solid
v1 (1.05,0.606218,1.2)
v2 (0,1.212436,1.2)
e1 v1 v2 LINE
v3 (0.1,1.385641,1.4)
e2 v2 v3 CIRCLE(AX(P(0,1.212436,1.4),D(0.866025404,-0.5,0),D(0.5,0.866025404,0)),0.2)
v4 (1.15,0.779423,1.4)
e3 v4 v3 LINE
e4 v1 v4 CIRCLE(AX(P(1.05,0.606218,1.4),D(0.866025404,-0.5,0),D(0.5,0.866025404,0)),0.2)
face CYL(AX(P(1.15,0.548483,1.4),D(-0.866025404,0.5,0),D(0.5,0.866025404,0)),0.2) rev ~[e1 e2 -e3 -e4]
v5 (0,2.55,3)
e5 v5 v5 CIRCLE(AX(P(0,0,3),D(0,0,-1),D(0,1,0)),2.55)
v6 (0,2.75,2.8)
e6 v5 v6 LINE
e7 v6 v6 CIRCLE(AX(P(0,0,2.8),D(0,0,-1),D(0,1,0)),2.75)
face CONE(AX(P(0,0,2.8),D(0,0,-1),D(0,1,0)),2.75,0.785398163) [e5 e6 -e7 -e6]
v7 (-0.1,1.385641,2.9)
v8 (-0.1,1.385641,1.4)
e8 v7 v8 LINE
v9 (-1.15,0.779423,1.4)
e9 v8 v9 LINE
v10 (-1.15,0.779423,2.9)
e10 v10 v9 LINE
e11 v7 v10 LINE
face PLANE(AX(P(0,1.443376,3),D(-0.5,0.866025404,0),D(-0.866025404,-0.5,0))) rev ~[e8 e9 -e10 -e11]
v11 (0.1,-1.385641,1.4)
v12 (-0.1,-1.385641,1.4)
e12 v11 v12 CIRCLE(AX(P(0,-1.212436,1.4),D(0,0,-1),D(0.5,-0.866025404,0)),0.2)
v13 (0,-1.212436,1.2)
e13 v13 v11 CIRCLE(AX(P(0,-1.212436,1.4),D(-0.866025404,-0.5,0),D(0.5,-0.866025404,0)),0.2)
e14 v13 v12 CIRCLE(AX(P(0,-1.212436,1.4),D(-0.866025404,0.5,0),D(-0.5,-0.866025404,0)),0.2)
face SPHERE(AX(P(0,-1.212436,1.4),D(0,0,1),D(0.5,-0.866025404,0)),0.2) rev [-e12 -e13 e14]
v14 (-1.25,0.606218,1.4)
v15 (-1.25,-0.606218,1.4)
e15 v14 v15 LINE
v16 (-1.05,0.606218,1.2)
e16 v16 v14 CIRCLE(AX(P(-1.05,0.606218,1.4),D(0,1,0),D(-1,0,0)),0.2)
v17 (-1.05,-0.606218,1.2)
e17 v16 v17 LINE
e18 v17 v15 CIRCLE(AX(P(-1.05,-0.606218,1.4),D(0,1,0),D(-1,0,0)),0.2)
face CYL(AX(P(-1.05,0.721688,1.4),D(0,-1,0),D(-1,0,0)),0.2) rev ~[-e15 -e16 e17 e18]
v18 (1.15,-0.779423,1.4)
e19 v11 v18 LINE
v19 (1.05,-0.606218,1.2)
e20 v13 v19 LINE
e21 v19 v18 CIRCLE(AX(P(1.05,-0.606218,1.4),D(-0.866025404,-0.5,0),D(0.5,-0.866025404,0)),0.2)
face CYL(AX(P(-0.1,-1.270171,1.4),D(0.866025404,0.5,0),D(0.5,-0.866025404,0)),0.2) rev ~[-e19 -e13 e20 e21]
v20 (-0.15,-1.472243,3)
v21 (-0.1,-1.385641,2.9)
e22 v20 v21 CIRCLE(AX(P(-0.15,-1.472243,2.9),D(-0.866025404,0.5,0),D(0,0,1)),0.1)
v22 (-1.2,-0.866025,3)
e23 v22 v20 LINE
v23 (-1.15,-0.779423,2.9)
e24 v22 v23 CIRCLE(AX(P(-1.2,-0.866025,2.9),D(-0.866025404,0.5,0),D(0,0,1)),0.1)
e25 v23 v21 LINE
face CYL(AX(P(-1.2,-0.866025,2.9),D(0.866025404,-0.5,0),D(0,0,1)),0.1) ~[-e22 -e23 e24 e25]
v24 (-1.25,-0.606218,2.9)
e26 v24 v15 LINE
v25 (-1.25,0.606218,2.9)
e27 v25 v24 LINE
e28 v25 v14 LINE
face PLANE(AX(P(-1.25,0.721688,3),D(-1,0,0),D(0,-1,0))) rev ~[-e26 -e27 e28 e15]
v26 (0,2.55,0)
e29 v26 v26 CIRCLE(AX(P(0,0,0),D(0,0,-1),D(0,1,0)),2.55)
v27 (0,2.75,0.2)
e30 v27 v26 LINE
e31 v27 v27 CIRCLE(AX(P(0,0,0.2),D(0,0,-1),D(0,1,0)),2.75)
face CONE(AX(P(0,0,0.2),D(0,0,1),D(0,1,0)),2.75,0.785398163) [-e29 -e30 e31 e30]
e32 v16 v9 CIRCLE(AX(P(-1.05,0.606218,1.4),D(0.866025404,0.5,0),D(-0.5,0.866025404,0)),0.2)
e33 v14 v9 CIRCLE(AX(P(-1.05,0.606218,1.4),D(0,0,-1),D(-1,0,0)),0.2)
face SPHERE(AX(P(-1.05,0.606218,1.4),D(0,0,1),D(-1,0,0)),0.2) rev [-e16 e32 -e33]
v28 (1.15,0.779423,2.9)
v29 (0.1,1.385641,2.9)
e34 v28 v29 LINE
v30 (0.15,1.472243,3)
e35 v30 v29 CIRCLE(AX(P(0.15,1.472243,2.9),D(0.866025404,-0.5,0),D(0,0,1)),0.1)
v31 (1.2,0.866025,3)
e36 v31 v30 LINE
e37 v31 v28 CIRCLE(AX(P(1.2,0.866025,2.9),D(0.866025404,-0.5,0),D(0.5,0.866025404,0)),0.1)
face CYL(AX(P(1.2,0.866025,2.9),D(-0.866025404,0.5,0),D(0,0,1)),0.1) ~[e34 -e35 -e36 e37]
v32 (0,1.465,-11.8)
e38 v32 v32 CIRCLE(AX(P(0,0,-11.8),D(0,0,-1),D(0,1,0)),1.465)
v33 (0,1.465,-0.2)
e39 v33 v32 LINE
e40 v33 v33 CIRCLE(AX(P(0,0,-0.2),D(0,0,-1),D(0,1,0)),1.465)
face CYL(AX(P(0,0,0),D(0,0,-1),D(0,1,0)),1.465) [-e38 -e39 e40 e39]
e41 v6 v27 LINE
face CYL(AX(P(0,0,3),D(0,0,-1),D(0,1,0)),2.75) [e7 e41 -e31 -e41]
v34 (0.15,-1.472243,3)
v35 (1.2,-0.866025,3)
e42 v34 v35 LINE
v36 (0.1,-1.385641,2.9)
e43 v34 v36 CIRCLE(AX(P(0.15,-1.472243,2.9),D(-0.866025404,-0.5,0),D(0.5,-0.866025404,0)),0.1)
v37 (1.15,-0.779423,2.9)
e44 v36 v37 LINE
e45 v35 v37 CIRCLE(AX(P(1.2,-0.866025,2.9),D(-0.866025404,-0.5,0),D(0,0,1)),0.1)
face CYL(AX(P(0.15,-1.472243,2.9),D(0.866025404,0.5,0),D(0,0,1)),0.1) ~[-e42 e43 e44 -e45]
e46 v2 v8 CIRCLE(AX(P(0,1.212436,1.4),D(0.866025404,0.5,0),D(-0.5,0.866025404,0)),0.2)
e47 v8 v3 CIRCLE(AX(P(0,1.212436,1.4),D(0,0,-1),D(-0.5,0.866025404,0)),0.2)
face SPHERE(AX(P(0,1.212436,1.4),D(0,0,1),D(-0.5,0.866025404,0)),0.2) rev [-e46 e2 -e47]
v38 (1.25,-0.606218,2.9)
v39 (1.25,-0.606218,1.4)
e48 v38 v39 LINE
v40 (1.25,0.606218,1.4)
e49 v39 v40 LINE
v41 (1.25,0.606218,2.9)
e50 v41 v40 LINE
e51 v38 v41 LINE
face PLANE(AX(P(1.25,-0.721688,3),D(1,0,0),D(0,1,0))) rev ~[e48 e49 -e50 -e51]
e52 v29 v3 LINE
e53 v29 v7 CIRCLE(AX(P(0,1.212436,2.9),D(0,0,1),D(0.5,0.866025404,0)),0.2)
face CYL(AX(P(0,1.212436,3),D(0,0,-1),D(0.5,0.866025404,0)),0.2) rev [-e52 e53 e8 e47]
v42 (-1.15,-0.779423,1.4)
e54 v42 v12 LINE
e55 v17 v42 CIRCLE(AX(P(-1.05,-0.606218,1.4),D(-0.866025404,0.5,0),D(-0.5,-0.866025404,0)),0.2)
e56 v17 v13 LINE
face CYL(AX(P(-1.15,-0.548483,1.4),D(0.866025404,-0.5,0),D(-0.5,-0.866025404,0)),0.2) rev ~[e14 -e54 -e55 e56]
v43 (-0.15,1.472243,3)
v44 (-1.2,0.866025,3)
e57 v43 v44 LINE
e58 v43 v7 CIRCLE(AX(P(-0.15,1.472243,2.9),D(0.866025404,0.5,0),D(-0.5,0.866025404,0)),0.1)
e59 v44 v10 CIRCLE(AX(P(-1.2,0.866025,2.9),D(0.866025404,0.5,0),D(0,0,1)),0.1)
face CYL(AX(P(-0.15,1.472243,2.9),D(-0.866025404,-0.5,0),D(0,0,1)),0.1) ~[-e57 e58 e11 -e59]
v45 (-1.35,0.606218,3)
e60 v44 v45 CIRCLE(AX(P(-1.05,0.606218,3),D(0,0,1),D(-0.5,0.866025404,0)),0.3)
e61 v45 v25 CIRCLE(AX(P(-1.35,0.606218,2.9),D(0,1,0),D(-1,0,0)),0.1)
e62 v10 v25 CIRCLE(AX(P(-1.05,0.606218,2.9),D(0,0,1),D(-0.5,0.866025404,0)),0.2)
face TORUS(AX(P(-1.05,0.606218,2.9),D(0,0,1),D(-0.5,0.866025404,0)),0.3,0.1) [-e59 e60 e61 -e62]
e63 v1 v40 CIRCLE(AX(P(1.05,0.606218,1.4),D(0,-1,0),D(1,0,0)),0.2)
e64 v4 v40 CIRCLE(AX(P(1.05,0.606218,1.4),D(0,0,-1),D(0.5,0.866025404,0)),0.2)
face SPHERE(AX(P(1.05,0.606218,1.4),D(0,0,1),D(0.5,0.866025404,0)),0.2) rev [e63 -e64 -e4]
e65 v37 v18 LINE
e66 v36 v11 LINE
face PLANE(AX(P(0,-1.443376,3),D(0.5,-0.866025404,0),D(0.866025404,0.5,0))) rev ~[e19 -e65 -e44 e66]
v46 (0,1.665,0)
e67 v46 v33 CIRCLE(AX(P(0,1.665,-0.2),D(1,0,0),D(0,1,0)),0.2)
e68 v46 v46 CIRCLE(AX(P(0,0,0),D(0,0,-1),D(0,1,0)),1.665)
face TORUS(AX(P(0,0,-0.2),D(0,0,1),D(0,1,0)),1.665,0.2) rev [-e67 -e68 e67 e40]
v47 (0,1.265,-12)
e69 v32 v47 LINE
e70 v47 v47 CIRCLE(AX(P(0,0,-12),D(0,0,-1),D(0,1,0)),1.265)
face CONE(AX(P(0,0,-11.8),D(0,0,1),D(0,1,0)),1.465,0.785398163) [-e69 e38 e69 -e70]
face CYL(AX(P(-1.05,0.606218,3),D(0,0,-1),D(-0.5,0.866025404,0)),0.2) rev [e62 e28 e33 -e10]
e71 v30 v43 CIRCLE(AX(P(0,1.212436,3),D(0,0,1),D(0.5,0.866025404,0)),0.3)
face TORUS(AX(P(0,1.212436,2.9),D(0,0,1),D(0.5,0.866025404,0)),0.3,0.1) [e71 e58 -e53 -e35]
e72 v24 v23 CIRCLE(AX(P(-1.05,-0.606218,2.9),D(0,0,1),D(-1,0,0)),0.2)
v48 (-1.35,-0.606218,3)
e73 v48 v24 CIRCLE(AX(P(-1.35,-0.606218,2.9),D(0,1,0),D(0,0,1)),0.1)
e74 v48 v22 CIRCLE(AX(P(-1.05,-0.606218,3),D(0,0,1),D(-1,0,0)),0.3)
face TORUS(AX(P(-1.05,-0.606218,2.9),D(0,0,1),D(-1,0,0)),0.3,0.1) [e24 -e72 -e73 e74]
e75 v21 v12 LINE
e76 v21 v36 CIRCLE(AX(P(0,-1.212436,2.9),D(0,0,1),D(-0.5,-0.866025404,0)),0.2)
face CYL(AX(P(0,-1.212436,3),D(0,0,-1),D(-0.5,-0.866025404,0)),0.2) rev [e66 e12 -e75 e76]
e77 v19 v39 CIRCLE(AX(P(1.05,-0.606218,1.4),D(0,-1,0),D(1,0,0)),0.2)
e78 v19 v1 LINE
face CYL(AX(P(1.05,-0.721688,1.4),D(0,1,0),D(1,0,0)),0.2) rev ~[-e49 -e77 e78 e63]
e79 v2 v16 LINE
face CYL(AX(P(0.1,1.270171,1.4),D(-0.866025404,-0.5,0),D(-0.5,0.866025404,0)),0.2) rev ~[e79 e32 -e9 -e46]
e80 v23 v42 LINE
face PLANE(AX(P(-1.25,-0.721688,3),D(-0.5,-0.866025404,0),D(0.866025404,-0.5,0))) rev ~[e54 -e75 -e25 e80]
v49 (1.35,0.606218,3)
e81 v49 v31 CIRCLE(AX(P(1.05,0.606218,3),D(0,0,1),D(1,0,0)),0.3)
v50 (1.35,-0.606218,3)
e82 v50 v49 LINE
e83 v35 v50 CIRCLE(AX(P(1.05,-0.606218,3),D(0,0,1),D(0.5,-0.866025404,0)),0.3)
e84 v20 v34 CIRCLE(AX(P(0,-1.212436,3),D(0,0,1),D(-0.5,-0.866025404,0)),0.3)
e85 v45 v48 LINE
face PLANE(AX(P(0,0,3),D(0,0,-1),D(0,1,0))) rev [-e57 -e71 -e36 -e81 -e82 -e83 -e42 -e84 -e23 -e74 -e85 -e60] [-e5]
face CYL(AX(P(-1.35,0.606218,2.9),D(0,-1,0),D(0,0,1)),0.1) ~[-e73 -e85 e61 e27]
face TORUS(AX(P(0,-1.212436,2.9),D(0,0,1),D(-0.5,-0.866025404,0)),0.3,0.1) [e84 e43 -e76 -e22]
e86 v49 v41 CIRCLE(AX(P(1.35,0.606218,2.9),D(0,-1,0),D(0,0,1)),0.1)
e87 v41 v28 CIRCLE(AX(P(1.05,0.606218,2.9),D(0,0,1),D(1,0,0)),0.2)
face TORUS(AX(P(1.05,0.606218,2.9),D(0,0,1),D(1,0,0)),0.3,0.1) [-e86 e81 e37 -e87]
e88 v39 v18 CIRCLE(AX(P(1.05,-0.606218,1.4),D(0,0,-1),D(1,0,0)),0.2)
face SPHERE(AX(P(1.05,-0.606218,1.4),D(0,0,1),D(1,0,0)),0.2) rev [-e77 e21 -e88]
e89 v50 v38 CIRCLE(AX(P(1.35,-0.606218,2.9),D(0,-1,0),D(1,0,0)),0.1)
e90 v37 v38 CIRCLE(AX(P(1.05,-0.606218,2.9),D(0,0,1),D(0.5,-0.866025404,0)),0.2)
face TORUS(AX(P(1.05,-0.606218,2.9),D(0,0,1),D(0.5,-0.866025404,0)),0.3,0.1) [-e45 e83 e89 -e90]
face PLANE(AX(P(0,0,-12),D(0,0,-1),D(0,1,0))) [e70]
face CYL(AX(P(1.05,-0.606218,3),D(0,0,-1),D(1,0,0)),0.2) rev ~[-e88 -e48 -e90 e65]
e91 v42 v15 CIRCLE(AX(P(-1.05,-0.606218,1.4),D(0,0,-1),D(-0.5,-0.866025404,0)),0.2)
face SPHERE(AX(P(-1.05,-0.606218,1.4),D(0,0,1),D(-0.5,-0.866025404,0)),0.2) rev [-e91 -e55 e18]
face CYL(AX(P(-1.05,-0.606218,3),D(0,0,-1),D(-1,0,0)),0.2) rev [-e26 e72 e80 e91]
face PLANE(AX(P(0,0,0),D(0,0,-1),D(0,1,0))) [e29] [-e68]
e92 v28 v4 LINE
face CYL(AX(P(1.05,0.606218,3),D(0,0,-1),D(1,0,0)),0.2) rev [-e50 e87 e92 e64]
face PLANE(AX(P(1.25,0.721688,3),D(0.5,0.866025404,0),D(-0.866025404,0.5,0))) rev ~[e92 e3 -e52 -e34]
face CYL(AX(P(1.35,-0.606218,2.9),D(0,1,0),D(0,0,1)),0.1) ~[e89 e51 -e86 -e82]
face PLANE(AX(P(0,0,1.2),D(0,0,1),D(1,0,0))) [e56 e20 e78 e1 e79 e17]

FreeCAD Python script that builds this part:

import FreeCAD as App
import Part
import Sketcher

V = App.Vector
Q = App.Units.Quantity


def edges_at(feature, points):
    """Names of the edges that pass closest to the given points."""
    edges = feature.Shape.Edges
    near = lambda p: min(range(len(edges)), key=lambda i: edges[i].distToShape(Part.Vertex(*p))[0])
    return sorted({f"Edge{near(p) + 1}" for p in points})


def add_polygon(sketch, points):
    """Adds a closed chain of lines whose ends are joined by coincident constraints."""
    first, n = sketch.GeometryCount, len(points)
    for a, b in zip(points, points[1:] + points[:1]):
        sketch.addGeometry(Part.LineSegment(App.Vector(*a, 0), App.Vector(*b, 0)), False)
    for i in range(n):
        sketch.addConstraint(Sketcher.Constraint("Coincident", first + i, 2, first + (i + 1) % n, 1))

doc = App.newDocument("Part")
body = doc.addObject("PartDesign::Body", "Body")

sketch1 = body.newObject("Sketcher::SketchObject", "Sketch")
sketch1.AttachmentSupport = (doc.getObject("YZ_Plane"), [""])
sketch1.MapMode = "FlatFace"
add_polygon(sketch1, [(2.8, 3), (0, 3), (0, -12), (1.5, -12), (1.5, 0), (2.8, 0)])
sketch1.addConstraint([
    Sketcher.Constraint("Horizontal", 0),
    Sketcher.Constraint("Vertical", 1),
    Sketcher.Constraint("Horizontal", 2),
    Sketcher.Constraint("Vertical", 3),
    Sketcher.Constraint("Horizontal", 4),
    Sketcher.Constraint("Vertical", 5),
    Sketcher.Constraint("PointOnObject", 0, 2, -2),
    Sketcher.Constraint("PointOnObject", 3, 2, -1),
    Sketcher.Constraint("DistanceY", 1, 2, 1, 1, 15.0),
    Sketcher.Constraint("DistanceY", 3, 1, 3, 2, 12.0),
    Sketcher.Constraint("DistanceX", 0, 2, 0, 1, 2.75),
    Sketcher.Constraint("DistanceX", 2, 1, 2, 2, 1.465),
])
revolution = body.newObject("PartDesign::Revolution", "Revolution")
revolution.Profile = sketch1
revolution.ReferenceAxis = (sketch1, ["V_Axis"])
revolution.Angle = 360

sketch2 = body.newObject("Sketcher::SketchObject", "Sketch001")
sketch2.AttachmentSupport = (doc.getObject("XY_Plane"), [""])
sketch2.MapMode = "FlatFace"
sketch2.AttachmentOffset = App.Placement(V(0, 0, 3), App.Rotation())
add_polygon(sketch2, [(1.2, -0.7), (1.2, 0.7), (0, 1.4), (-1.2, 0.7), (-1.2, -0.7), (0, -1.4)])
sketch2.addConstraint([
    Sketcher.Constraint("Vertical", 0),
    Sketcher.Constraint("Vertical", 3),
    Sketcher.Constraint("Symmetric", 0, 2, 3, 2, -1, 1),
    Sketcher.Constraint("Symmetric", 1, 2, 4, 2, -1, 1),
    Sketcher.Constraint("PointOnObject", 1, 2, -2),
    Sketcher.Constraint("Parallel", 2, 5),
    Sketcher.Constraint("Horizontal", 0, 2, 2, 2),
    Sketcher.Constraint("Angle", 1, Q("150 deg")),
    Sketcher.Constraint("DistanceX", 2, 2, 0, 2, 2.5),
    Sketcher.Constraint("DistanceY", 0, 1, 0, 2, 1.443376),
])
pocket1 = body.newObject("PartDesign::Pocket", "Pocket")
pocket1.Profile = sketch2
pocket1.Length = 1.8
doc.recompute()

chamfer = body.newObject("PartDesign::Chamfer", "Chamfer")
chamfer.Base = (pocket1, edges_at(pocket1, [(0, -1.465, -12), (0, -2.75, 0), (0, -2.75, 3)]))
chamfer.Size = 0.2
doc.recompute()

fillet = body.newObject("PartDesign::Fillet", "Fillet")
fillet.Base = (chamfer, edges_at(chamfer, [
    (0.625, -1.083, 1.2),
    (1.25, -0.722, 2.1),
    (-0.625, -1.083, 1.2),
    (0, -1.443, 2.1),
    (-1.25, 0, 1.2),
    (-1.25, -0.722, 2.1),
    (-0.625, 1.083, 1.2),
    (-1.25, 0.722, 2.1),
    (0.625, 1.083, 1.2),
    (0, 1.443, 2.1),
    (1.25, 0, 1.2),
    (1.25, 0.722, 2.1),
    (0, -1.465, 0),
]))
fillet.Radius = 0.2
doc.recompute()

fillet2 = body.newObject("PartDesign::Fillet", "Fillet001")
fillet2.Base = (fillet, edges_at(fillet, [
    (-0.625, -1.083, 3),
    (-1.25, 0, 3),
    (-0.625, 1.083, 3),
    (0.625, 1.083, 3),
    (1.25, 0, 3),
    (0.625, -1.083, 3),
    (-1.223, -0.706, 3),
    (0, -1.412, 3),
    (1.223, -0.706, 3),
    (1.223, 0.706, 3),
    (0, 1.412, 3),
    (-1.223, 0.706, 3),
]))
fillet2.Radius = 0.1

doc.recompute()
